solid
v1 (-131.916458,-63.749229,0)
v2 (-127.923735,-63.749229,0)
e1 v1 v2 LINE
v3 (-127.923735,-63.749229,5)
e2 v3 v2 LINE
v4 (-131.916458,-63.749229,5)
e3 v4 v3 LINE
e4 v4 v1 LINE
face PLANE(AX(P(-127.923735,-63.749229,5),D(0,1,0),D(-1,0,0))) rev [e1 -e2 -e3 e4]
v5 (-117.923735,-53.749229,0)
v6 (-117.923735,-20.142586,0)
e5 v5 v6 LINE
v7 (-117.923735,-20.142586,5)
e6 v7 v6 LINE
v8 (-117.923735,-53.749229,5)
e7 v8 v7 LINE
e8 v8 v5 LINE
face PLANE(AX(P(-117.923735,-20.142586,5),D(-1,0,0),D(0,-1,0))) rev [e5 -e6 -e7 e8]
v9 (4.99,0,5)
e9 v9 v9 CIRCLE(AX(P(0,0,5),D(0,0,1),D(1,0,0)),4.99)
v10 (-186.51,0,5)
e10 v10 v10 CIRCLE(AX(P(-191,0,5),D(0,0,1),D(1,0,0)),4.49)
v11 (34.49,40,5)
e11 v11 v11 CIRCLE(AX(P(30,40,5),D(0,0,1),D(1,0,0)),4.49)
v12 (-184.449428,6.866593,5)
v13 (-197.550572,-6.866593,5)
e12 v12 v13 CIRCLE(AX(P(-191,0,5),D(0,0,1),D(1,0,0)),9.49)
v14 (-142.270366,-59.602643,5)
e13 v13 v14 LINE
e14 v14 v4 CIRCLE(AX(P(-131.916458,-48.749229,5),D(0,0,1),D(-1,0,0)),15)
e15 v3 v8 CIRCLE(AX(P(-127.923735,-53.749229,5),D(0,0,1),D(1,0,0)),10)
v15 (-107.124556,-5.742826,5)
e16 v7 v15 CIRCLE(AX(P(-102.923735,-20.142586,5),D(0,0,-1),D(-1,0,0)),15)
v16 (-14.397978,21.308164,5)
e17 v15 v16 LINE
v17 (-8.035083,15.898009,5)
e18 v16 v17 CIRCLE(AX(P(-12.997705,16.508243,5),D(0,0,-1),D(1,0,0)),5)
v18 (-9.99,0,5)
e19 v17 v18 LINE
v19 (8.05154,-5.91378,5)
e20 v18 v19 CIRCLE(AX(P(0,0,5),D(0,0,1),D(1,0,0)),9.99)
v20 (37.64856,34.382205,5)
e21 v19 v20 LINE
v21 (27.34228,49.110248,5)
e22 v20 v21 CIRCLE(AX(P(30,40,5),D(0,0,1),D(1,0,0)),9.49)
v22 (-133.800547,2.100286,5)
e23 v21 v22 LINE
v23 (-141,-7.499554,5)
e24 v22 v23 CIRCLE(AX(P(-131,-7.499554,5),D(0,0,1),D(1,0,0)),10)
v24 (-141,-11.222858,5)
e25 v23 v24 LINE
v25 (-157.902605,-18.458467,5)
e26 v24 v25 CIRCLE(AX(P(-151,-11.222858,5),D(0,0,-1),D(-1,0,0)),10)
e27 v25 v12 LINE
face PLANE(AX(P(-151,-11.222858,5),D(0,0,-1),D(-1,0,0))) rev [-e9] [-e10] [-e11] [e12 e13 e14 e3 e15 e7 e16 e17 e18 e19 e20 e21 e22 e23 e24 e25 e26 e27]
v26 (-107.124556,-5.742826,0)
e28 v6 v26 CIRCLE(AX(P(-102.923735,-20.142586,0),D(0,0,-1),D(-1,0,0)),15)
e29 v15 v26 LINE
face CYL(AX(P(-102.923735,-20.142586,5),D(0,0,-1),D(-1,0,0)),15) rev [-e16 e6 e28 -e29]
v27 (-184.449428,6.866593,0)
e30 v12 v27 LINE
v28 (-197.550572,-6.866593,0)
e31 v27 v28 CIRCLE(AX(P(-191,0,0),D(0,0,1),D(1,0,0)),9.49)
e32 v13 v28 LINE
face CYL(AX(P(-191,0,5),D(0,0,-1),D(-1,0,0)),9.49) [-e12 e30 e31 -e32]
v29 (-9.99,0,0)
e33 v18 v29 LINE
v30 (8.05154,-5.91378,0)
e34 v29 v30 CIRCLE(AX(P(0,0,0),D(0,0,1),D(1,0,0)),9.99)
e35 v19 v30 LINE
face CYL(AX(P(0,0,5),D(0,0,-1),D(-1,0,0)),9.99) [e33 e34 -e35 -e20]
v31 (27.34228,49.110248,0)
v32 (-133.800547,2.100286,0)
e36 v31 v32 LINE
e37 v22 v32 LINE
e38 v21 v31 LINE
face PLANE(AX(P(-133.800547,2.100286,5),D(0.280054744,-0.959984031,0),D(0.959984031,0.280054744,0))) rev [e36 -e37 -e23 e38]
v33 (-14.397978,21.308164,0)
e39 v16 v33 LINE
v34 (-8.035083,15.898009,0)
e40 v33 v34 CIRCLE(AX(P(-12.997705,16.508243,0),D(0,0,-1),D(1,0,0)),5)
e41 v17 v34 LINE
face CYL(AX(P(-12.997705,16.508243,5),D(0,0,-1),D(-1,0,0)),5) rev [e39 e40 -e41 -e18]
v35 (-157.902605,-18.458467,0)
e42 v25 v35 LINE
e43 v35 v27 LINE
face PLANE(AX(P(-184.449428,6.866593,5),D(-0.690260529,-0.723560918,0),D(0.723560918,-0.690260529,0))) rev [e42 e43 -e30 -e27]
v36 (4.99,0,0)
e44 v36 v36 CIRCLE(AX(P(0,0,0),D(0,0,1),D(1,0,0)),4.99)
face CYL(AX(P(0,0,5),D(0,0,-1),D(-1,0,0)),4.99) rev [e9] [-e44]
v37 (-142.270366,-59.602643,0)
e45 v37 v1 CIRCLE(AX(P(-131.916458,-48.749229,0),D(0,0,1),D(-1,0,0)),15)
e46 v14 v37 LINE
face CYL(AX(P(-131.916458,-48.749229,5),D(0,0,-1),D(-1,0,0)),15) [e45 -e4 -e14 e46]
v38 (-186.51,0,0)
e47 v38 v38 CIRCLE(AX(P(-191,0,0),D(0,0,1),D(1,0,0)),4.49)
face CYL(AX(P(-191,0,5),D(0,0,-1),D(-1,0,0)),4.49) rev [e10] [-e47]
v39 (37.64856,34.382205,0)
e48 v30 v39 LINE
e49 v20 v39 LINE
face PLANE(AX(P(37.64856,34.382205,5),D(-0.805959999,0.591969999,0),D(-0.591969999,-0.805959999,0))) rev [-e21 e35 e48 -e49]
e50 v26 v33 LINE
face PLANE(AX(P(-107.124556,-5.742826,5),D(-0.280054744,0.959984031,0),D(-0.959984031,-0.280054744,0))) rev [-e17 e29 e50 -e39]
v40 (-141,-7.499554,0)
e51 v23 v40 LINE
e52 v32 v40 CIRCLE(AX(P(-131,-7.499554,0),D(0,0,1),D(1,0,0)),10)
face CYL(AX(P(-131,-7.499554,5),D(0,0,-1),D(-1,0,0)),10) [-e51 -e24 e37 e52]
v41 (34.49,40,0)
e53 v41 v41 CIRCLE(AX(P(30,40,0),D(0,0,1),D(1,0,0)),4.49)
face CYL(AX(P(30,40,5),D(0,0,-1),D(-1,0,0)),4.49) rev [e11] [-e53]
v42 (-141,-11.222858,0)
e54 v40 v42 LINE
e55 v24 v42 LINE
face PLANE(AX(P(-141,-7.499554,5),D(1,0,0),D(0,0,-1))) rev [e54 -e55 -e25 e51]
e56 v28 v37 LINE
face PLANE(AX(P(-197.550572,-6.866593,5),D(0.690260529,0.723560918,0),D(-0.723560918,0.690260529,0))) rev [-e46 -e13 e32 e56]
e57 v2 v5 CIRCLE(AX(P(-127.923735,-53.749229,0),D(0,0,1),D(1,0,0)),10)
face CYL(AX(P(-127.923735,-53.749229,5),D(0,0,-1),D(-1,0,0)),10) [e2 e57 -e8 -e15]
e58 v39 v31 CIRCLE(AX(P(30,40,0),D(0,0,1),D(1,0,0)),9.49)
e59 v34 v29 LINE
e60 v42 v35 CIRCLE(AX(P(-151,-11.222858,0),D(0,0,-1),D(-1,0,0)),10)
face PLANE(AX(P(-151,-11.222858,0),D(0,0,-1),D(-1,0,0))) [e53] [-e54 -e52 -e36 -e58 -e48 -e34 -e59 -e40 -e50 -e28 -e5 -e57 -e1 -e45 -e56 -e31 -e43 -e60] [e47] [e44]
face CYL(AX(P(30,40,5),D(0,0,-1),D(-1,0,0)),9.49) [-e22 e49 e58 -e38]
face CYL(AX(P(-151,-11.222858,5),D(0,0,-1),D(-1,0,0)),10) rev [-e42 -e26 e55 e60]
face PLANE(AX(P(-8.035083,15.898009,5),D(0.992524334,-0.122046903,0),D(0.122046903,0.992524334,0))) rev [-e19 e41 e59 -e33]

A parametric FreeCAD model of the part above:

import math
import FreeCAD as App
import Part
import Sketcher

V = App.Vector

doc = App.newDocument("Part")
body = doc.addObject("PartDesign::Body", "Body")

sketch1 = body.newObject("Sketcher::SketchObject", "Sketch")
sketch1.AttachmentSupport = (doc.getObject("XY_Plane"), [""])
sketch1.MapMode = "FlatFace"
sketch1.addGeometry(Part.LineSegment(V(27.3, 49.1, 0), V(-133.8, 2.1, 0)), False)
sketch1.addGeometry(Part.ArcOfCircle(Part.Circle(V(-131, -7.5, 0), V(0, 0, 1), 10), math.radians(106), math.radians(180)), False)
sketch1.addGeometry(Part.LineSegment(V(-141, -7.5, 0), V(-141, -11.2, 0)), False)
sketch1.addGeometry(Part.ArcOfCircle(Part.Circle(V(-151, -11.2, 0), V(0, 0, 1), 10), math.radians(-134), math.radians(0)), False)
sketch1.addGeometry(Part.LineSegment(V(-157.9, -18.5, 0), V(-184.4, 6.9, 0)), False)
sketch1.addGeometry(Part.ArcOfCircle(Part.Circle(V(-191, 0, 0), V(0, 0, 1), 9.5), math.radians(46), math.radians(226)), False)
sketch1.addGeometry(Part.LineSegment(V(-197.6, -6.9, 0), V(-142.3, -59.6, 0)), False)
sketch1.addGeometry(Part.ArcOfCircle(Part.Circle(V(-131.9, -48.7, 0), V(0, 0, 1), 15), math.radians(-134), math.radians(-90)), False)
sketch1.addGeometry(Part.LineSegment(V(-131.9, -63.7, 0), V(-127.9, -63.7, 0)), False)
sketch1.addGeometry(Part.ArcOfCircle(Part.Circle(V(-127.9, -53.7, 0), V(0, 0, 1), 10), math.radians(-90), math.radians(0)), False)
sketch1.addGeometry(Part.LineSegment(V(-117.9, -53.7, 0), V(-117.9, -20.1, 0)), False)
sketch1.addGeometry(Part.ArcOfCircle(Part.Circle(V(-102.9, -20.1, 0), V(0, 0, 1), 15), math.radians(106), math.radians(180)), False)
sketch1.addGeometry(Part.LineSegment(V(-107.1, -5.7, 0), V(-14.4, 21.3, 0)), False)
sketch1.addGeometry(Part.ArcOfCircle(Part.Circle(V(-13, 16.5, 0), V(0, 0, 1), 5), math.radians(-7), math.radians(106)), False)
sketch1.addGeometry(Part.LineSegment(V(-8, 15.9, 0), V(-10, 0, 0)), False)
sketch1.addGeometry(Part.ArcOfCircle(Part.Circle(V(0, 0, 0), V(0, 0, 1), 10), math.radians(-180), math.radians(-36)), False)
sketch1.addGeometry(Part.LineSegment(V(8.1, -5.9, 0), V(37.6, 34.4, 0)), False)
sketch1.addGeometry(Part.ArcOfCircle(Part.Circle(V(30, 40, 0), V(0, 0, 1), 9.5), math.radians(-36), math.radians(106)), False)
sketch1.addGeometry(Part.Circle(V(0, 0, 0), V(0, 0, 1), 5), False)
sketch1.addGeometry(Part.Circle(V(-191, 0, 0), V(0, 0, 1), 4.5), False)
sketch1.addGeometry(Part.Circle(V(30, 40, 0), V(0, 0, 1), 4.5), False)
sketch1.addConstraint(Sketcher.Constraint("Tangent", 0, 2, 1, 1))
sketch1.addConstraint(Sketcher.Constraint("Tangent", 1, 2, 2, 1))
sketch1.addConstraint(Sketcher.Constraint("Tangent", 2, 2, 3, 2))
sketch1.addConstraint(Sketcher.Constraint("Tangent", 3, 1, 4, 1))
sketch1.addConstraint(Sketcher.Constraint("Tangent", 4, 2, 5, 1))
sketch1.addConstraint(Sketcher.Constraint("Tangent", 5, 2, 6, 1))
sketch1.addConstraint(Sketcher.Constraint("Tangent", 6, 2, 7, 1))
sketch1.addConstraint(Sketcher.Constraint("Tangent", 7, 2, 8, 1))
sketch1.addConstraint(Sketcher.Constraint("Tangent", 8, 2, 9, 1))
sketch1.addConstraint(Sketcher.Constraint("Tangent", 9, 2, 10, 1))
sketch1.addConstraint(Sketcher.Constraint("Tangent", 10, 2, 11, 2))
sketch1.addConstraint(Sketcher.Constraint("Tangent", 11, 1, 12, 1))
sketch1.addConstraint(Sketcher.Constraint("Tangent", 12, 2, 13, 2))
sketch1.addConstraint(Sketcher.Constraint("Tangent", 13, 1, 14, 1))
sketch1.addConstraint(Sketcher.Constraint("Coincident", 14, 2, 15, 1))
sketch1.addConstraint(Sketcher.Constraint("Tangent", 15, 2, 16, 1))
sketch1.addConstraint(Sketcher.Constraint("Tangent", 16, 2, 17, 1))
sketch1.addConstraint(Sketcher.Constraint("Tangent", 17, 2, 0, 1))
sketch1.addConstraint(Sketcher.Constraint("Vertical", 2))
sketch1.addConstraint(Sketcher.Constraint("Horizontal", 8))
sketch1.addConstraint(Sketcher.Constraint("Vertical", 10))
sketch1.addConstraint(Sketcher.Constraint("Coincident", 15, 3, -1, 1))
sketch1.addConstraint(Sketcher.Constraint("Coincident", 18, 3, -1, 1))
sketch1.addConstraint(Sketcher.Constraint("Coincident", 19, 3, 5, 3))
sketch1.addConstraint(Sketcher.Constraint("Coincident", 20, 3, 17, 3))
sketch1.addConstraint(Sketcher.Constraint("Equal", 1, 3))
sketch1.addConstraint(Sketcher.Constraint("Equal", 3, 9))
sketch1.addConstraint(Sketcher.Constraint("Equal", 7, 11))
sketch1.addConstraint(Sketcher.Constraint("Equal", 5, 17))
sketch1.addConstraint(Sketcher.Constraint("Equal", 19, 20))
sketch1.addConstraint(Sketcher.Constraint("PointOnObject", 5, 3, -1))
sketch1.addConstraint(Sketcher.Constraint("PointOnObject", 14, 2, -1))
sketch1.addConstraint(Sketcher.Constraint("Parallel", 4, 6))
sketch1.addConstraint(Sketcher.Constraint("Parallel", 0, 12))
sketch1.addConstraint(Sketcher.Constraint("Radius", 1, 10.0))
sketch1.addConstraint(Sketcher.Constraint("Radius", 7, 15.0))
sketch1.addConstraint(Sketcher.Constraint("Radius", 13, 5.0))
sketch1.addConstraint(Sketcher.Constraint("Diameter", 18, 9.98))
sketch1.addConstraint(Sketcher.Constraint("Diameter", 19, 8.98))
sketch1.addConstraint(Sketcher.Constraint("Radius", 5, 9.49))
sketch1.addConstraint(Sketcher.Constraint("Radius", 15, 9.99))
sketch1.addConstraint(Sketcher.Constraint("DistanceX", 1, 3, -1, 1, 131.0))
sketch1.addConstraint(Sketcher.Constraint("DistanceX", 5, 3, -1, 1, 191.0))
sketch1.addConstraint(Sketcher.Constraint("DistanceX", -1, 1, 17, 3, 30.0))
sketch1.addConstraint(Sketcher.Constraint("DistanceY", -1, 1, 17, 3, 40.0))
sketch1.addConstraint(Sketcher.Constraint("DistanceY", 3, 3, 13, 3, 27.731101))
sketch1.addConstraint(Sketcher.Constraint("Distance", 6, 76.400211))
sketch1.addConstraint(Sketcher.Constraint("Distance", 12, 96.591792))
sketch1.addConstraint(Sketcher.Constraint("DistanceX", 8, 1, 8, 2, 3.992723))
sketch1.addConstraint(Sketcher.Constraint("DistanceY", 2, 2, 2, 1, 3.723303))
sketch1.addConstraint(Sketcher.Constraint("DistanceY", 10, 1, 10, 2, 33.606643))
pad1 = body.newObject("PartDesign::Pad", "Pad")
pad1.Profile = sketch1
pad1.Length = 5

doc.recompute()
